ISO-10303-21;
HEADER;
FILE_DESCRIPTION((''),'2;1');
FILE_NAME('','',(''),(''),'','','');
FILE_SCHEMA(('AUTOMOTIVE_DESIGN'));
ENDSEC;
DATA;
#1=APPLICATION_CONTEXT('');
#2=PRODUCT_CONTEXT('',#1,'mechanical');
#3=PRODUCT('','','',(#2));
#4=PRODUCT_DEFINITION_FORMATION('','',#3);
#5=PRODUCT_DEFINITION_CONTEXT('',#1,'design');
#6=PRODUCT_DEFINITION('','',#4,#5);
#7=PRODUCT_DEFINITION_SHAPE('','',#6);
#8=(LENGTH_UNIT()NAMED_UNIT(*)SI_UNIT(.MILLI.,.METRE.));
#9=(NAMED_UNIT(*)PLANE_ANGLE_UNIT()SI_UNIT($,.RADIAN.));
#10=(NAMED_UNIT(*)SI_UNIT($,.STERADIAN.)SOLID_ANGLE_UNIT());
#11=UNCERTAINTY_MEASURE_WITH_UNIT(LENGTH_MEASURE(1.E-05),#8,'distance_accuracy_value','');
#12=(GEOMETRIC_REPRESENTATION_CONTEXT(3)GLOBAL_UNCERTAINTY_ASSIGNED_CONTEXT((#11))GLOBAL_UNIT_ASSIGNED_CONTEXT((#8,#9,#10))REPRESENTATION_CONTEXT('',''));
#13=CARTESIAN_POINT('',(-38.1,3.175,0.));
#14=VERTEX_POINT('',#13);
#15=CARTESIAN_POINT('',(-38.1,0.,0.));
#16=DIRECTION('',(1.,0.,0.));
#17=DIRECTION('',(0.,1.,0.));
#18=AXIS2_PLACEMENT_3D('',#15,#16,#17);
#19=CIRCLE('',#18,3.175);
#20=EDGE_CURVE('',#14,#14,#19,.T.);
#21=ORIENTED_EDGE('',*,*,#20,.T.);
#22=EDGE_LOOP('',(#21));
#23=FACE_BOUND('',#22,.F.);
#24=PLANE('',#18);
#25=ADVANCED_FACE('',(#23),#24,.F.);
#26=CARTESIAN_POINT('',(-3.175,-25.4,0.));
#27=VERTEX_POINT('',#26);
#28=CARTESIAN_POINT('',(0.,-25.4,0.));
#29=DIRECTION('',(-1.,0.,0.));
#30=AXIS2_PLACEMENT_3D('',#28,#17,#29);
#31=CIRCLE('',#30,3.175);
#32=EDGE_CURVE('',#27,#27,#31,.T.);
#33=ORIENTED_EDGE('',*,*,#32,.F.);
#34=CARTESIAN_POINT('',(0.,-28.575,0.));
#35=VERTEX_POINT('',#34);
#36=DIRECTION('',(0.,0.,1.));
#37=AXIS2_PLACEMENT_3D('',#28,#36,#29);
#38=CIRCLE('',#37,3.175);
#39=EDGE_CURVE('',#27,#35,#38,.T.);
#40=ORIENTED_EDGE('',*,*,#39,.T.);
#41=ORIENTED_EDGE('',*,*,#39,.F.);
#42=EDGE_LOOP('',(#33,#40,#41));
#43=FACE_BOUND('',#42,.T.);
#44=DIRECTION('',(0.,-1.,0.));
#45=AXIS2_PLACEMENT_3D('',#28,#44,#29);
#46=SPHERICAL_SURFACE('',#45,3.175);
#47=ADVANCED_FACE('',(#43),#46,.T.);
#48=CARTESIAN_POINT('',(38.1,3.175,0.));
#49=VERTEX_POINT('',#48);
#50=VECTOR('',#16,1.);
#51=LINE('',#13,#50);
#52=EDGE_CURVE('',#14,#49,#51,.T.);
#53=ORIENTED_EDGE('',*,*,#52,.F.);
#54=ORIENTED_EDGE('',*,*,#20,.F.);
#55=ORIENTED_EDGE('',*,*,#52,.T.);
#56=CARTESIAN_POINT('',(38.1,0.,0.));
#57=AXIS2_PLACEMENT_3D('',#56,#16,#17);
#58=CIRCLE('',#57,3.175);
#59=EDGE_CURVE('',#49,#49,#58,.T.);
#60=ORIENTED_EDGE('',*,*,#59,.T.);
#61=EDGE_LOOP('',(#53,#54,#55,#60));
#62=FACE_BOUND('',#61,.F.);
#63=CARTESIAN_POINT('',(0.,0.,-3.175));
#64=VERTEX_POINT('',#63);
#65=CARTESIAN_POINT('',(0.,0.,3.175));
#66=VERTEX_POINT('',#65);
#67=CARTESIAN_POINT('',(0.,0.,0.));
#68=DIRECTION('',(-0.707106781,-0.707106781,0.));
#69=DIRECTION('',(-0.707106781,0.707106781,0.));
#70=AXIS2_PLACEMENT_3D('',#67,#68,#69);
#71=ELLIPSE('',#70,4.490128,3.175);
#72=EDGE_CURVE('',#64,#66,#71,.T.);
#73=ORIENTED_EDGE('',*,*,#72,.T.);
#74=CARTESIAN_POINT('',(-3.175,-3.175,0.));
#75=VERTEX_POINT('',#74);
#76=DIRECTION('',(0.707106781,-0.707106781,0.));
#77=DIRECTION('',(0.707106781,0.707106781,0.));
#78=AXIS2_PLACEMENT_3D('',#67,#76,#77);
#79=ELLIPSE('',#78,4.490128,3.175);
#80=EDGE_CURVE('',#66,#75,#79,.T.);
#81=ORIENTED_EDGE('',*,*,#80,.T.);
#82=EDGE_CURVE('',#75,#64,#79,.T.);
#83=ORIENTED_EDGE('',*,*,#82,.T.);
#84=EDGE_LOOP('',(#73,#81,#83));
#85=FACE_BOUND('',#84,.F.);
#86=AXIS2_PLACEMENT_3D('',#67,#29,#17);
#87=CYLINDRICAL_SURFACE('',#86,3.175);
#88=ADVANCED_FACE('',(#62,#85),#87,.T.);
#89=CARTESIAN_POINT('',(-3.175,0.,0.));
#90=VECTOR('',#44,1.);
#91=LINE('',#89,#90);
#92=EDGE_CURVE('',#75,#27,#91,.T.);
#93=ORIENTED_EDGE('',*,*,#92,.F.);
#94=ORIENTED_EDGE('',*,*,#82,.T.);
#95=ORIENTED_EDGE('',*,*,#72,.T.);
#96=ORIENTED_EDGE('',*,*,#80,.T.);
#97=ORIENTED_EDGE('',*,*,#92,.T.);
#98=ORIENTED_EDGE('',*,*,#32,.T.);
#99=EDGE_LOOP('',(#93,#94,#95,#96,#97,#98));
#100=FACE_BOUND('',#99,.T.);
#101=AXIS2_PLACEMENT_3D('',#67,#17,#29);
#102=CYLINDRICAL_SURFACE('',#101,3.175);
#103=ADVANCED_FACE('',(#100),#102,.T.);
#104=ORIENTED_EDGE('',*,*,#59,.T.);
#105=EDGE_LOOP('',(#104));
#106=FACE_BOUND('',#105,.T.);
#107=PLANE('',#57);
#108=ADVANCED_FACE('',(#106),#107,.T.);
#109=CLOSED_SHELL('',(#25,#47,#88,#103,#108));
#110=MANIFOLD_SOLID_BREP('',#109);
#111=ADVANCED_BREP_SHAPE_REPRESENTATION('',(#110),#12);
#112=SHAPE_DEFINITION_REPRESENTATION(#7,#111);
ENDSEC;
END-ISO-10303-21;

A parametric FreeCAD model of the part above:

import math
import FreeCAD as App
import Part
import Sketcher

V = App.Vector
Q = App.Units.Quantity

doc = App.newDocument("Part")
body = doc.addObject("PartDesign::Body", "Body")

# Sketch on YZ plane
sketch1 = doc.addObject("Sketcher::SketchObject", "Sketch")
body.addObject(sketch1)
sketch1.AttachmentSupport = (doc.YZ_Plane, [""])
sketch1.MapMode = "FlatFace"
sketch1.addGeometry(Part.Circle(V(0, 0, 0), V(0, 0, 1), 3.2), False)
sketch1.addConstraint([
    Sketcher.Constraint("Coincident", 0, 3, -1, 1),
    Sketcher.Constraint("Diameter", 0, Q("0.25 in")),
])
pad1 = doc.addObject("PartDesign::Pad", "Pad")
body.addObject(pad1)
pad1.Profile = sketch1
pad1.Length = Q("3 in")
pad1.Midplane = True

# Sketch on XZ plane
sketch2 = doc.addObject("Sketcher::SketchObject", "Sketch001")
body.addObject(sketch2)
sketch2.AttachmentSupport = (doc.XZ_Plane, [""])
sketch2.MapMode = "FlatFace"
sketch2.addGeometry(Part.Circle(V(0, 0, 0), V(0, 0, 1), 3.2), False)
sketch2.addConstraint([
    Sketcher.Constraint("Coincident", 0, 3, -1, 1),
    Sketcher.Constraint("Diameter", 0, Q("0.25 in")),
])
pad2 = doc.addObject("PartDesign::Pad", "Pad001")
body.addObject(pad2)
pad2.Profile = sketch2
pad2.Length = Q("1 in")

# Sketch on XY plane
sketch3 = doc.addObject("Sketcher::SketchObject", "Sketch002")
body.addObject(sketch3)
sketch3.AttachmentSupport = (doc.XY_Plane, [""])
sketch3.MapMode = "FlatFace"
sketch3.addGeometry([
    Part.LineSegment(V(0, -25.4, 0), V(-3.2, -25.4, 0)),
    Part.ArcOfCircle(Part.Circle(V(0, -25.4, 0), V(0, 0, 1), 3.2), math.radians(180), math.radians(270)),
    Part.LineSegment(V(0, -28.6, 0), V(0, -25.4, 0)),
], False)
sketch3.addConstraint([
    Sketcher.Constraint("Coincident", 0, 2, 1, 1),
    Sketcher.Constraint("Coincident", 1, 2, 2, 1),
    Sketcher.Constraint("Coincident", 2, 2, 0, 1),
    Sketcher.Constraint("Horizontal", 0),
    Sketcher.Constraint("Vertical", 2),
    Sketcher.Constraint("Coincident", 2, 2, 1, 3),
    Sketcher.Constraint("PointOnObject", 1, 3, -2),
    Sketcher.Constraint("DistanceY", 1, 3, -1, 1, Q("1 in")),
    Sketcher.Constraint("Radius", 1, Q("0.125 in")),
])
revolution = doc.addObject("PartDesign::Revolution", "Revolution")
body.addObject(revolution)
revolution.Profile = sketch3
revolution.ReferenceAxis = (sketch3, ["V_Axis"])
revolution.Angle = 360

doc.recompute()
